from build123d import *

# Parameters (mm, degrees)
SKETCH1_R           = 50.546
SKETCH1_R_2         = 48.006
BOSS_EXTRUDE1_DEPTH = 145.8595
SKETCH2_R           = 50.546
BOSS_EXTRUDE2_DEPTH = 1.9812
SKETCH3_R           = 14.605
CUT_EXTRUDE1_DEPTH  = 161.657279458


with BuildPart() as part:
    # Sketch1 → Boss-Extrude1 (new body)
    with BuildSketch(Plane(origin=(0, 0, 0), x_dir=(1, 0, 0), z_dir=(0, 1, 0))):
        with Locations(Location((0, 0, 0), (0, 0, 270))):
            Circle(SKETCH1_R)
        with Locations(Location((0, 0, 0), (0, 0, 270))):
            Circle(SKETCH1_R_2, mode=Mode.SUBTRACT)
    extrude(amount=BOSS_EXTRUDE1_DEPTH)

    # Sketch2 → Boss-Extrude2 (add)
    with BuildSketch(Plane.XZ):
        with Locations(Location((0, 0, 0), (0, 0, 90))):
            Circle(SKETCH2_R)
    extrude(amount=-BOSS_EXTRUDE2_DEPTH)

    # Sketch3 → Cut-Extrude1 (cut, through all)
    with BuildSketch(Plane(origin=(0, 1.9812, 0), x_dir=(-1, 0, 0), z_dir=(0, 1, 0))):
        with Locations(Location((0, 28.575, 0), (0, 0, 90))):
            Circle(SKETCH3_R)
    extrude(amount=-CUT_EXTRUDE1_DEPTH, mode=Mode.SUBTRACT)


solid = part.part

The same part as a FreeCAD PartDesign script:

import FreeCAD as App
import Part
import Sketcher

V = App.Vector
Q = App.Units.Quantity

doc = App.newDocument("Part")
body = doc.addObject("PartDesign::Body", "Body")

# Sketch on XZ plane
sketch1 = body.newObject("Sketcher::SketchObject", "Sketch")
sketch1.AttachmentSupport = (doc.getObject("XZ_Plane"), [""])
sketch1.MapMode = "FlatFace"
sketch1.addGeometry([
    Part.Circle(V(0, 0, 0), V(0, 0, 1), 50.546),
    Part.Circle(V(0, 0, 0), V(0, 0, 1), 48.006),
], False)
sketch1.addConstraint([
    Sketcher.Constraint("Coincident", 0, 3, -1, 1),
    Sketcher.Constraint("Coincident", 1, 3, -1, 1),
    Sketcher.Constraint("Diameter", 0, Q("3.98 in")),
    Sketcher.Constraint("Diameter", 1, Q("3.78 in")),
])
pad1 = body.newObject("PartDesign::Pad", "Pad")
pad1.Profile = sketch1
pad1.Length = Q("5.7425 in")
pad1.Reversed = True

# Sketch on XZ plane
sketch2 = body.newObject("Sketcher::SketchObject", "Sketch001")
sketch2.AttachmentSupport = (doc.getObject("XZ_Plane"), [""])
sketch2.MapMode = "FlatFace"
sketch2.addGeometry(Part.Circle(V(0, 0, 0), V(0, 0, 1), 50.546), False)
sketch2.addConstraint([
    Sketcher.Constraint("Coincident", 0, 3, -1, 1),
    Sketcher.Constraint("Diameter", 0, Q("3.98 in")),
])
pad2 = body.newObject("PartDesign::Pad", "Pad001")
pad2.Profile = sketch2
pad2.Length = Q("0.078 in")
pad2.Reversed = True

# Sketch on XZ plane
sketch3 = body.newObject("Sketcher::SketchObject", "Sketch002")
sketch3.AttachmentSupport = (doc.getObject("XZ_Plane"), [""])
sketch3.MapMode = "FlatFace"
sketch3.AttachmentOffset = App.Placement(V(0, 0, -0.078 * 25.4), App.Rotation())
sketch3.addGeometry(Part.Circle(V(0, 28.575, 0), V(0, 0, 1), 14.605), False)
sketch3.addConstraint([
    Sketcher.Constraint("PointOnObject", 0, 3, -2),
    Sketcher.Constraint("Diameter", 0, Q("1.15 in")),
    Sketcher.Constraint("DistanceY", -1, 1, 0, 3, Q("1.125 in")),
])
pocket1 = body.newObject("PartDesign::Pocket", "Pocket")
pocket1.Profile = sketch3
pocket1.Type = "ThroughAll"
pocket1.Reversed = True

doc.recompute()
